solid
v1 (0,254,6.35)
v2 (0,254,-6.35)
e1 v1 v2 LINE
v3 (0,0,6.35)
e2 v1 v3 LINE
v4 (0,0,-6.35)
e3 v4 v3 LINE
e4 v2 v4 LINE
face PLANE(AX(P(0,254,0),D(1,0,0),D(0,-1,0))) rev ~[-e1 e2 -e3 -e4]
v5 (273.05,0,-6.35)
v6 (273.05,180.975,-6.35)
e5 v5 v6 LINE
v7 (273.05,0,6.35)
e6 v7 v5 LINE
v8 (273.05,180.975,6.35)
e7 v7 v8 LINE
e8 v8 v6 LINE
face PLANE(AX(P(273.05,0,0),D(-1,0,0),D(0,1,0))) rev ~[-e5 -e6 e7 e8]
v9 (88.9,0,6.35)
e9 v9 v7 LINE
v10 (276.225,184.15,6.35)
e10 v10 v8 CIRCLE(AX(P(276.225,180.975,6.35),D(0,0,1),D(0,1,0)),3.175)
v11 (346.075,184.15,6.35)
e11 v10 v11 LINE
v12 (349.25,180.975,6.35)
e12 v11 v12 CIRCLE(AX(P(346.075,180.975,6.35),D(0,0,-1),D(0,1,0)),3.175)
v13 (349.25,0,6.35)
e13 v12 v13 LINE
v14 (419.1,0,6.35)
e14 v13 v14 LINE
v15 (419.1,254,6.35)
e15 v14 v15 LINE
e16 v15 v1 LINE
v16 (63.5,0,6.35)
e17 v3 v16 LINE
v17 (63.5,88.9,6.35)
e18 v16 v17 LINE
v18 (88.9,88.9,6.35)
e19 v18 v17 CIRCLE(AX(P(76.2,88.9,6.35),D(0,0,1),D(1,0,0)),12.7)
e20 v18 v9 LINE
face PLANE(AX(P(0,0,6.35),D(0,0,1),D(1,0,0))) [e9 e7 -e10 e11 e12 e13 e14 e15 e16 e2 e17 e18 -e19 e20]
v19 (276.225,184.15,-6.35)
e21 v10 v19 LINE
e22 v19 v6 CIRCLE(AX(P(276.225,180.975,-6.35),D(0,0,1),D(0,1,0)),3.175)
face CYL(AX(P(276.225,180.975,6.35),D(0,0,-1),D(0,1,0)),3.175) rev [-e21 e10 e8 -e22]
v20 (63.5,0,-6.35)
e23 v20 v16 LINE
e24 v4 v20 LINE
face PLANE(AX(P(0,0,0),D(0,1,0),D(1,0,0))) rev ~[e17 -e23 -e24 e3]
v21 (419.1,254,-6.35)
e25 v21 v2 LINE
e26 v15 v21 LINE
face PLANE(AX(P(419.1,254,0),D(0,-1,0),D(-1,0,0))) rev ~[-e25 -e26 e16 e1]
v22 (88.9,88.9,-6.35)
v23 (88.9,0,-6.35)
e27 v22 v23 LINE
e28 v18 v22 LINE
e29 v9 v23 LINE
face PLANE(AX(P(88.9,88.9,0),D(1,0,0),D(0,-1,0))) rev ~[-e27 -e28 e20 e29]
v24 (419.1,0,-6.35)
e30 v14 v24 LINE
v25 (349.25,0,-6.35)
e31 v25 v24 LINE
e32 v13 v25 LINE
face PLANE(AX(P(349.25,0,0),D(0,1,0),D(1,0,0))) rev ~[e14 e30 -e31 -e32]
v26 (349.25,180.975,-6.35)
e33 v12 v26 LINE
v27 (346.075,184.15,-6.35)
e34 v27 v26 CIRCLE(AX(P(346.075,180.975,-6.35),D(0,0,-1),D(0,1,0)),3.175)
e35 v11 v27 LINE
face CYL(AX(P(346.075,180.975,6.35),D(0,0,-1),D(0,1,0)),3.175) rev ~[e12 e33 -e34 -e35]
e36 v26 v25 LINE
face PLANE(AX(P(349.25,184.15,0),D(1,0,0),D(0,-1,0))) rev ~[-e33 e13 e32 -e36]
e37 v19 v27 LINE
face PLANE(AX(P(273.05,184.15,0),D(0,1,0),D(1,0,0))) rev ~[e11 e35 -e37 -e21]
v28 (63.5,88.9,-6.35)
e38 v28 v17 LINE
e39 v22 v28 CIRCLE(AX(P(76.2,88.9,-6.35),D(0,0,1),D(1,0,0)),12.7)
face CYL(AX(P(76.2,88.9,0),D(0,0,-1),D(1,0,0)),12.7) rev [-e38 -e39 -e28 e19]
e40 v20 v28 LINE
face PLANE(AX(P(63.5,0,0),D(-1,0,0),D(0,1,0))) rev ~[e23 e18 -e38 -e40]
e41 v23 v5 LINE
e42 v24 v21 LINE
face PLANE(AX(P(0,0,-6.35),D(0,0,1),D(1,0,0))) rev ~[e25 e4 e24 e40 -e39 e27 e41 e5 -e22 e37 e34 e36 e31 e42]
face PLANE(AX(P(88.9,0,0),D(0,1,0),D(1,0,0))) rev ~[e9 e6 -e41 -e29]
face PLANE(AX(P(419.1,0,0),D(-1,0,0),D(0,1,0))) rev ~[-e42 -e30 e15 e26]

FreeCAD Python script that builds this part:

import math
import FreeCAD as App
import Part
import Sketcher
from FreeCAD import Vector
Q = App.Units.Quantity


def edges_at(feature, points):
    """Names of the edges that pass closest to the given points."""
    edges = feature.Shape.Edges
    near = lambda p: min(range(len(edges)), key=lambda i: edges[i].distToShape(Part.Vertex(*p))[0])
    return sorted({f"Edge{near(p) + 1}" for p in points})

doc = App.newDocument("Part")
body = doc.addObject("PartDesign::Body", "Body")

# Sketch on XY plane
sketch1 = body.newObject("Sketcher::SketchObject", "Sketch")
sketch1.AttachmentSupport = (doc.getObject("XY_Plane"), [""])
sketch1.MapMode = "FlatFace"
sketch1.addGeometry([
    Part.LineSegment(Vector(0, 254, 0), Vector(0, 0, 0)),  # 0
    Part.LineSegment(Vector(0, 0, 0), Vector(64, 0, 0)),  # 1
    Part.LineSegment(Vector(64, 0, 0), Vector(64, 89, 0)),  # 2
    Part.ArcOfCircle(Part.Circle(Vector(76, 89, 0), Vector(0, 0, 1), 13), math.radians(0), math.radians(180)),  # 3
    Part.LineSegment(Vector(89, 89, 0), Vector(89, 0, 0)),  # 4
    Part.LineSegment(Vector(89, 0, 0), Vector(273, 0, 0)),  # 5
    Part.LineSegment(Vector(273, 0, 0), Vector(273, 184, 0)),  # 6
    Part.LineSegment(Vector(273, 184, 0), Vector(349, 184, 0)),  # 7
    Part.LineSegment(Vector(349, 184, 0), Vector(349, 0, 0)),  # 8
    Part.LineSegment(Vector(349, 0, 0), Vector(419, 0, 0)),  # 9
    Part.LineSegment(Vector(419, 0, 0), Vector(419, 254, 0)),  # 10
    Part.LineSegment(Vector(419, 254, 0), Vector(0, 254, 0)),  # 11
], False)
sketch1.addConstraint([
    Sketcher.Constraint("Coincident", 0, 2, 1, 1),
    Sketcher.Constraint("Coincident", 1, 2, 2, 1),
    Sketcher.Constraint("Tangent", 2, 2, 3, 2),
    Sketcher.Constraint("Tangent", 3, 1, 4, 1),
    Sketcher.Constraint("Coincident", 4, 2, 5, 1),
    Sketcher.Constraint("Coincident", 5, 2, 6, 1),
    Sketcher.Constraint("Coincident", 6, 2, 7, 1),
    Sketcher.Constraint("Coincident", 7, 2, 8, 1),
    Sketcher.Constraint("Coincident", 8, 2, 9, 1),
    Sketcher.Constraint("Coincident", 9, 2, 10, 1),
    Sketcher.Constraint("Coincident", 10, 2, 11, 1),
    Sketcher.Constraint("Coincident", 11, 2, 0, 1),
    Sketcher.Constraint("Vertical", 0),
    Sketcher.Constraint("Horizontal", 1),
    Sketcher.Constraint("Vertical", 2),
    Sketcher.Constraint("Vertical", 4),
    Sketcher.Constraint("Horizontal", 5),
    Sketcher.Constraint("Vertical", 6),
    Sketcher.Constraint("Horizontal", 7),
    Sketcher.Constraint("Vertical", 8),
    Sketcher.Constraint("Horizontal", 9),
    Sketcher.Constraint("Vertical", 10),
    Sketcher.Constraint("Horizontal", 11),
    Sketcher.Constraint("Coincident", 0, 2, -1, 1),
    Sketcher.Constraint("PointOnObject", 4, 2, -1),
    Sketcher.Constraint("PointOnObject", 8, 2, -1),
    Sketcher.Constraint("Equal", 5, 6),
    Sketcher.Constraint("Radius", 3, Q("0.5 in")),
    Sketcher.Constraint("DistanceX", 7, 1, 7, 2, Q("3 in")),
    Sketcher.Constraint("DistanceY", 0, 2, 0, 1, Q("10 in")),
    Sketcher.Constraint("DistanceX", 1, 1, 1, 2, Q("2.5 in")),
    Sketcher.Constraint("DistanceX", 11, 2, 11, 1, Q("16.5 in")),
    Sketcher.Constraint("DistanceY", 2, 1, 2, 2, Q("3.5 in")),
    Sketcher.Constraint("DistanceX", 5, 1, 5, 2, Q("7.25 in")),
])
pad1 = body.newObject("PartDesign::Pad", "Pad")
pad1.Profile = sketch1
pad1.Length = Q("0.5 in")
pad1.Midplane = True
doc.recompute()

fillet = body.newObject("PartDesign::Fillet", "Fillet")
fillet.Base = (pad1, edges_at(pad1, [(273.05, 184.15, 0)]))
fillet.Radius = Q("0.125 in")
doc.recompute()

fillet2 = body.newObject("PartDesign::Fillet", "Fillet001")
fillet2.Base = (fillet, edges_at(fillet, [(349.25, 184.15, 0)]))
fillet2.Radius = Q("0.125 in")

doc.recompute()
